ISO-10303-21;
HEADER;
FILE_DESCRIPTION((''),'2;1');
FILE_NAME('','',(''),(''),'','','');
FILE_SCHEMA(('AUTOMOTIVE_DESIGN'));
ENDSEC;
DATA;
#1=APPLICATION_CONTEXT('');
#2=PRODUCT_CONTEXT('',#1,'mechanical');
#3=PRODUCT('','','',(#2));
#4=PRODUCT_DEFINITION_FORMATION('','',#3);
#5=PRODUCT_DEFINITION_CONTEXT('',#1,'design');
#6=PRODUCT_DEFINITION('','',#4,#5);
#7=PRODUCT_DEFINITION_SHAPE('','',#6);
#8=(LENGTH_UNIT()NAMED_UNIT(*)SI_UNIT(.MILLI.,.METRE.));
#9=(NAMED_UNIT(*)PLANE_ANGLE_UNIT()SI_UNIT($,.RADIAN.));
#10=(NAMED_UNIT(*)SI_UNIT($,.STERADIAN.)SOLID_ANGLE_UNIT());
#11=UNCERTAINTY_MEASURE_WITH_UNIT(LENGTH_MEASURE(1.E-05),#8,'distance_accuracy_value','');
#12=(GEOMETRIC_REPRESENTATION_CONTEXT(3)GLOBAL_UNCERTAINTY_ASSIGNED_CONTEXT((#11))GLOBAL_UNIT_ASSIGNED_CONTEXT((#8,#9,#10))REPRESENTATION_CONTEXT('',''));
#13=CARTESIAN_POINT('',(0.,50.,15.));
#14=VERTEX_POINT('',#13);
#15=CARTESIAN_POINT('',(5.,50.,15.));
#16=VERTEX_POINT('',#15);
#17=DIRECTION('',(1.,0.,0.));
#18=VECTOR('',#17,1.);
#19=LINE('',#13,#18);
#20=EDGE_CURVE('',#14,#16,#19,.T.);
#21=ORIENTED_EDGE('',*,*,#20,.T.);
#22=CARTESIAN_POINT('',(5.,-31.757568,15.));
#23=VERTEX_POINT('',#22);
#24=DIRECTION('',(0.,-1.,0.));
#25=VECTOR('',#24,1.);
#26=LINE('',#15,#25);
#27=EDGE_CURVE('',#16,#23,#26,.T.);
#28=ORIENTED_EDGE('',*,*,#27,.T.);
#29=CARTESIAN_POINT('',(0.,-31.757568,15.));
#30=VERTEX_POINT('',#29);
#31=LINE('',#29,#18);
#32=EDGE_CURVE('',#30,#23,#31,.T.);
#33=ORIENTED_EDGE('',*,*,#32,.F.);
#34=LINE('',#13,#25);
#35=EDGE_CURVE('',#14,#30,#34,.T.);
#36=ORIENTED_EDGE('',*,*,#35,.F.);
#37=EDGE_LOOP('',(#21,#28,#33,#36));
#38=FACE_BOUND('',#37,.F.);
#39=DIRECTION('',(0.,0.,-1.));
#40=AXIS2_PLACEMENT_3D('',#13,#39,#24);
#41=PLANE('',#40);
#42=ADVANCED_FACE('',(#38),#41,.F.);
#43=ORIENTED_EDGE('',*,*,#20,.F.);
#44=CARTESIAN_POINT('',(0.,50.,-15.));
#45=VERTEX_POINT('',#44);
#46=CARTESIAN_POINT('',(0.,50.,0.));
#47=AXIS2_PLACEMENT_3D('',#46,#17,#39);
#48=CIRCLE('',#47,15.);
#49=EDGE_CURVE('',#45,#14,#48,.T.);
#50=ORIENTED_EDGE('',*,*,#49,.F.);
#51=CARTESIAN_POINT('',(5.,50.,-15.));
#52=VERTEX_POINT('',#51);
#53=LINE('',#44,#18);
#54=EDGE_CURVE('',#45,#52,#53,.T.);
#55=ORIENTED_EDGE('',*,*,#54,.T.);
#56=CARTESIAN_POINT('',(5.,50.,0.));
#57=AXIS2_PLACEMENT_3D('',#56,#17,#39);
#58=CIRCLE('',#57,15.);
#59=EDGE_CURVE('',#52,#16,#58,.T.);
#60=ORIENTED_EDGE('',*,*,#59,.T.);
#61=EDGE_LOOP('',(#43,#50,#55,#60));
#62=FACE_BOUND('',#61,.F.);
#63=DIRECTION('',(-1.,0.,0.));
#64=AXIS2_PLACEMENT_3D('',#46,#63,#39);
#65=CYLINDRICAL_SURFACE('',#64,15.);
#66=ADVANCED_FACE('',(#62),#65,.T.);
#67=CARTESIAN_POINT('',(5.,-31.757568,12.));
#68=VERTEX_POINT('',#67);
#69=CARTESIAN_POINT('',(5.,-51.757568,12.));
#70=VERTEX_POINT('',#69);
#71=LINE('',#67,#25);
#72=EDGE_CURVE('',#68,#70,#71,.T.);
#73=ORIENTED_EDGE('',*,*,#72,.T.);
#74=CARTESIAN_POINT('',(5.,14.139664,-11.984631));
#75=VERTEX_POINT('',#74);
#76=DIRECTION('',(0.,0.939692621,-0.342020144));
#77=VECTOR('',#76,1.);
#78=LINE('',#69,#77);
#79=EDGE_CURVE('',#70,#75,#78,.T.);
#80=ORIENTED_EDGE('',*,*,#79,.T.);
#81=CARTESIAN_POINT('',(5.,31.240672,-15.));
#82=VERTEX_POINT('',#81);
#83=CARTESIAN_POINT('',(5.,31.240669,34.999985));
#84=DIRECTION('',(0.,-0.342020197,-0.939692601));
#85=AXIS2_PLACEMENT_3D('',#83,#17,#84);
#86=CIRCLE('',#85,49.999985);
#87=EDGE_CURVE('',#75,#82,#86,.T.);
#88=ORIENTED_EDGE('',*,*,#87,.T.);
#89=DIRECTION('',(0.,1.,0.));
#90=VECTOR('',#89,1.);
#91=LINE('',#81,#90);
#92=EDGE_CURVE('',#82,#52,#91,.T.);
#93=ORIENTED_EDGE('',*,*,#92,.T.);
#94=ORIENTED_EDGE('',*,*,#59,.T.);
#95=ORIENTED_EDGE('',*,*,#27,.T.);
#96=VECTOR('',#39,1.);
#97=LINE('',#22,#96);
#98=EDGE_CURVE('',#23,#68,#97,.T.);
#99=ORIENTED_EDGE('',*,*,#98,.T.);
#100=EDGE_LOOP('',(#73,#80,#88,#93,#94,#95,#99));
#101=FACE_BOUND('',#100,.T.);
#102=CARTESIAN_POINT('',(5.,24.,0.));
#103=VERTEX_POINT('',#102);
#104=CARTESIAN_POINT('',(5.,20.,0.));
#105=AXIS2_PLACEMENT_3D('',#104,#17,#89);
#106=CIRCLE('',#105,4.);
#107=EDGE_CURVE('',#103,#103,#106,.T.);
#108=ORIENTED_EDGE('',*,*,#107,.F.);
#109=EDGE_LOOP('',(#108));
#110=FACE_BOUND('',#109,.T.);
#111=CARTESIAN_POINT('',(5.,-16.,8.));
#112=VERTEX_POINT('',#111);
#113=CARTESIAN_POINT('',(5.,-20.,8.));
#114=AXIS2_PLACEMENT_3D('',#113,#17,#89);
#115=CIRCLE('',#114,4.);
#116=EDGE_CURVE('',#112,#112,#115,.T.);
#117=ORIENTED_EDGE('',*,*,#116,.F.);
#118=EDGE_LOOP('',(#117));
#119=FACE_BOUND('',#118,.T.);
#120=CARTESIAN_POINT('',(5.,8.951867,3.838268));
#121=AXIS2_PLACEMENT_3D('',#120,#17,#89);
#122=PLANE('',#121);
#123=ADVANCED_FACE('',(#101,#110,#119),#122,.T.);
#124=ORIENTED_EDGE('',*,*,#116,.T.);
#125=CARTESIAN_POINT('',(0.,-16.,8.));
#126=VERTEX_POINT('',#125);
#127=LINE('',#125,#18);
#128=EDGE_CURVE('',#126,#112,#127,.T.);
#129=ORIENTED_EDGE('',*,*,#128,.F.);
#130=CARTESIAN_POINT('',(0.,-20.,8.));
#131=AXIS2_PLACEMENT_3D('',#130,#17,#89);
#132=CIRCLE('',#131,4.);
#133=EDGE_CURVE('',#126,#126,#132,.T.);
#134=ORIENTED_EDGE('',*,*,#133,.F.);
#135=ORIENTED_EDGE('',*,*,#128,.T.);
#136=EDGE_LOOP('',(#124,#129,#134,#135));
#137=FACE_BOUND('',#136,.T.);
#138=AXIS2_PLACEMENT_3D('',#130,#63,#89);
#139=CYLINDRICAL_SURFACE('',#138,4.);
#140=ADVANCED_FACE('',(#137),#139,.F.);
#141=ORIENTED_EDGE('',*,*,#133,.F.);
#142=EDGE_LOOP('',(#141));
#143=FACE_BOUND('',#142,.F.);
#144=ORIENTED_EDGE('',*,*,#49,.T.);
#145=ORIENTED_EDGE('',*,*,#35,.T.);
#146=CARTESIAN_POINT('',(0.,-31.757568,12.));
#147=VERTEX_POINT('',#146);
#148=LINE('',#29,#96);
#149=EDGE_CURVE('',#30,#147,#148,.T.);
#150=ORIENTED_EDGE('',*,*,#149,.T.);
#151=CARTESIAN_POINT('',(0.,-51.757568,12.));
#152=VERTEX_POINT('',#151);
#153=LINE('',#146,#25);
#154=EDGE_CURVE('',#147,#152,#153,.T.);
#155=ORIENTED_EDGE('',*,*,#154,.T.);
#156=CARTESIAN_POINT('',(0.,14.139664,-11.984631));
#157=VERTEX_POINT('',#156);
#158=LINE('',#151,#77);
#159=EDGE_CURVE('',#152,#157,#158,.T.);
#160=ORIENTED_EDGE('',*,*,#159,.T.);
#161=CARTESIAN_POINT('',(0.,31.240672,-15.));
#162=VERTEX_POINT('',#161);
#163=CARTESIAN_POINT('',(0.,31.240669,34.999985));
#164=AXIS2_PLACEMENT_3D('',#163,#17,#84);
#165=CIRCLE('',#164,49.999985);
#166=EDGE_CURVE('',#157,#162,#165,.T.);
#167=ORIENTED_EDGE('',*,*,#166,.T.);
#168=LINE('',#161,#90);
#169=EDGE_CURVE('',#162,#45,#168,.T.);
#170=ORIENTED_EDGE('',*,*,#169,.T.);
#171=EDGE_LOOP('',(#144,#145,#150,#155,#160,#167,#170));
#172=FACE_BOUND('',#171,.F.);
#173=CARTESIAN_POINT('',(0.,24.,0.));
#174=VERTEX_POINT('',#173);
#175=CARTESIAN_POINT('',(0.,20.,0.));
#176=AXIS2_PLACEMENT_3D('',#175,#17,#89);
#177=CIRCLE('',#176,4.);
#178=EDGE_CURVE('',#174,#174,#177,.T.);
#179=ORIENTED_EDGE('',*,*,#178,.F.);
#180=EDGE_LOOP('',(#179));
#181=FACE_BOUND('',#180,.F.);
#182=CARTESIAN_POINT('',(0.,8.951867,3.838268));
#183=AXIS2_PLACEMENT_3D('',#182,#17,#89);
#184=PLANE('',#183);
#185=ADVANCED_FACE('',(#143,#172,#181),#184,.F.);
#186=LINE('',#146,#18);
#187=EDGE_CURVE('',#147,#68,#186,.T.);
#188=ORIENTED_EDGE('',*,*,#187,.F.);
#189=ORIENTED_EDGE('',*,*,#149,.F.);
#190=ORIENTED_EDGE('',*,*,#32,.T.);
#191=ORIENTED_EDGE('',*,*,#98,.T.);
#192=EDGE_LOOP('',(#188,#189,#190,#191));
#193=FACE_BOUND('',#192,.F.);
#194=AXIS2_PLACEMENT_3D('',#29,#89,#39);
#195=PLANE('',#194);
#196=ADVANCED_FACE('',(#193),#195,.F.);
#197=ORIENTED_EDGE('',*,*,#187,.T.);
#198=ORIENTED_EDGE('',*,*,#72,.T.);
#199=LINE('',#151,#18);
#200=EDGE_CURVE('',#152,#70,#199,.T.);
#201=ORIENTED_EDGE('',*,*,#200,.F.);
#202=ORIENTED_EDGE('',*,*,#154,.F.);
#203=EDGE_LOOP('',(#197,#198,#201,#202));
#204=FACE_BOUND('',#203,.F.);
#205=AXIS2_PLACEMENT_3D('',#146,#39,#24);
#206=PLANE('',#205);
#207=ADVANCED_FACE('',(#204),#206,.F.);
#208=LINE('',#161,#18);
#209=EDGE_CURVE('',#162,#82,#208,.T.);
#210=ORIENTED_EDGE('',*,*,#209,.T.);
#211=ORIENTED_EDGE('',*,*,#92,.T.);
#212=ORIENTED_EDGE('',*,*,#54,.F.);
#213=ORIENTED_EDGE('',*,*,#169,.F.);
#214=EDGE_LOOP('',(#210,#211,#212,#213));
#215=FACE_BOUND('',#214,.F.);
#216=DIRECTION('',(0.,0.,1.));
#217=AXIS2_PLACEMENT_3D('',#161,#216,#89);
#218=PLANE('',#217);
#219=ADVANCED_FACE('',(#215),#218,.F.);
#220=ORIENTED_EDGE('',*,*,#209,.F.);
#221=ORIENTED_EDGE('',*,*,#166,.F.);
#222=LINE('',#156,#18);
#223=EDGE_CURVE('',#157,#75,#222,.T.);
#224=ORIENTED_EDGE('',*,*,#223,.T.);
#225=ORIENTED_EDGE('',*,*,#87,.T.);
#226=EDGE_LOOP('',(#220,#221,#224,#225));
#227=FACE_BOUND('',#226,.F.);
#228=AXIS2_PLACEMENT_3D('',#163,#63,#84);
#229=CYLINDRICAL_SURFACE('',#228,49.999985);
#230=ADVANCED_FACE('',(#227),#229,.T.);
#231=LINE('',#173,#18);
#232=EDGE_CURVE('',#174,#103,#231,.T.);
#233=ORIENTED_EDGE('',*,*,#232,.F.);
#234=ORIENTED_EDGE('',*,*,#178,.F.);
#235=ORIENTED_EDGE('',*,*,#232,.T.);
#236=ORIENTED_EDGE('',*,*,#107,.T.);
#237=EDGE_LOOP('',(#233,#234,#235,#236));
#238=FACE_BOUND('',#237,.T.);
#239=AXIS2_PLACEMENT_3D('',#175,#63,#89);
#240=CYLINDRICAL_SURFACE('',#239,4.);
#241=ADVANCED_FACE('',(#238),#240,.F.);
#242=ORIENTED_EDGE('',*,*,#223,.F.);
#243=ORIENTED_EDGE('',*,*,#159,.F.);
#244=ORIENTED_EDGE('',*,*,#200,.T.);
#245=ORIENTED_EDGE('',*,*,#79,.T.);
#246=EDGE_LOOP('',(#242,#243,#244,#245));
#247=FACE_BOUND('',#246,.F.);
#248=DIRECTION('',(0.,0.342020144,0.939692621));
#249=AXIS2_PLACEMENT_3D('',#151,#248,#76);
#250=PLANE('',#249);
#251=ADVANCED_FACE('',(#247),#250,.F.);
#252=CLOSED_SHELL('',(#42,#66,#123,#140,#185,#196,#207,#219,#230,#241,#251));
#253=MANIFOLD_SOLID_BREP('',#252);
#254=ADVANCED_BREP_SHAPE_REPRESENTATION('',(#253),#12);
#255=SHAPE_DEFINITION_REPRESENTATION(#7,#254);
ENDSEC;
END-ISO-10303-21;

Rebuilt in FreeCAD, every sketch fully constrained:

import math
import FreeCAD as App
import Part
import Sketcher

V = App.Vector
Q = App.Units.Quantity

doc = App.newDocument("Part")
body = doc.addObject("PartDesign::Body", "Body")

sketch1 = doc.addObject("Sketcher::SketchObject", "Sketch")
body.addObject(sketch1)
sketch1.AttachmentSupport = (doc.YZ_Plane, [""])
sketch1.MapMode = "FlatFace"
sketch1.addGeometry([
    Part.LineSegment(V(50, 15, 0), V(-31.8, 15, 0)),
    Part.LineSegment(V(-31.8, 15, 0), V(-31.8, 12, 0)),
    Part.LineSegment(V(-31.8, 12, 0), V(-51.8, 12, 0)),
    Part.LineSegment(V(-51.8, 12, 0), V(14.1, -12, 0)),
    Part.ArcOfCircle(Part.Circle(V(31.2, 35, 0), V(0, 0, 1), 50), math.radians(-110), math.radians(-90)),
    Part.LineSegment(V(31.2, -15, 0), V(50, -15, 0)),
    Part.ArcOfCircle(Part.Circle(V(50, 0, 0), V(0, 0, 1), 15), math.radians(-90), math.radians(90)),
    Part.Circle(V(20, 0, 0), V(0, 0, 1), 4),
    Part.Circle(V(-20, 8, 0), V(0, 0, 1), 4),
], False)
sketch1.addConstraint([
    Sketcher.Constraint("Coincident", 0, 2, 1, 1),
    Sketcher.Constraint("Coincident", 1, 2, 2, 1),
    Sketcher.Constraint("Coincident", 2, 2, 3, 1),
    Sketcher.Constraint("Tangent", 3, 2, 4, 1),
    Sketcher.Constraint("Tangent", 4, 2, 5, 1),
    Sketcher.Constraint("Tangent", 5, 2, 6, 1),
    Sketcher.Constraint("Tangent", 6, 2, 0, 1),
    Sketcher.Constraint("Horizontal", 0),
    Sketcher.Constraint("Vertical", 1),
    Sketcher.Constraint("Horizontal", 2),
    Sketcher.Constraint("Horizontal", 5),
    Sketcher.Constraint("Equal", 7, 8),
    Sketcher.Constraint("PointOnObject", 6, 3, -1),
    Sketcher.Constraint("PointOnObject", 7, 3, -1),
    Sketcher.Constraint("Diameter", 7, Q("8 mm")),
    Sketcher.Constraint("Radius", 6, Q("15 mm")),
    Sketcher.Constraint("DistanceX", 2, 2, 2, 1, Q("20 mm")),
    Sketcher.Constraint("DistanceY", 1, 2, 1, 1, Q("3 mm")),
    Sketcher.Constraint("Angle", 3, Q("-20 deg")),
    Sketcher.Constraint("DistanceX", -1, 1, 6, 3, Q("50 mm")),
    Sketcher.Constraint("DistanceX", -1, 1, 7, 3, Q("20 mm")),
    Sketcher.Constraint("DistanceX", 8, 3, -1, 1, Q("20 mm")),
    Sketcher.Constraint("DistanceY", -1, 1, 8, 3, Q("8 mm")),
    Sketcher.Constraint("Radius", 4, Q("49.999985 mm")),
    Sketcher.Constraint("DistanceX", 5, 1, 5, 2, Q("18.759328 mm")),
])
pad1 = doc.addObject("PartDesign::Pad", "Pad")
body.addObject(pad1)
pad1.Profile = sketch1
pad1.Length = 5

doc.recompute()
